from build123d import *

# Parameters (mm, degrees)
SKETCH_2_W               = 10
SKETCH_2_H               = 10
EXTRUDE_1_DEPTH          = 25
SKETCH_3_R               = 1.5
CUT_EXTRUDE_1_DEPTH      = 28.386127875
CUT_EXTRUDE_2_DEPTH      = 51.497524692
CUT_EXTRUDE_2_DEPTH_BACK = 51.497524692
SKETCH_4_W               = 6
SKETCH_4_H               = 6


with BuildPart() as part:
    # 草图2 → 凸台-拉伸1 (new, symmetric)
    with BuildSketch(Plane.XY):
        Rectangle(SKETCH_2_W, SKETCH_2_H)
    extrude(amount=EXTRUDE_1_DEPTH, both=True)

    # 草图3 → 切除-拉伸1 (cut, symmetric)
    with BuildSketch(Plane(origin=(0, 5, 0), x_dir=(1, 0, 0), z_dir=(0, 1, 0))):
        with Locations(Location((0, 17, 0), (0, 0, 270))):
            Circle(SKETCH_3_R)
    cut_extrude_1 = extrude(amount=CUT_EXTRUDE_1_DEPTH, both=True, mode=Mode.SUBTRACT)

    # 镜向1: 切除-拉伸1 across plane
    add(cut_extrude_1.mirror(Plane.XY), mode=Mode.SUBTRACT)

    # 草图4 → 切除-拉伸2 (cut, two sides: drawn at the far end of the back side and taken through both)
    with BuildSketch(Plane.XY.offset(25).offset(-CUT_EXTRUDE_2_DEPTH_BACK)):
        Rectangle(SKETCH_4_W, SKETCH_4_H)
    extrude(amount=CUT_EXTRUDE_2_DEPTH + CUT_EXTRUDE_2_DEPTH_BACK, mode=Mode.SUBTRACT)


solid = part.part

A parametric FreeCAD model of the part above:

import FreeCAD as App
import Part
import Sketcher
from FreeCAD import Vector
Q = App.Units.Quantity


def add_polygon(sketch, points):
    """Adds a closed chain of lines whose ends are joined by coincident constraints."""
    first, n = sketch.GeometryCount, len(points)
    for a, b in zip(points, points[1:] + points[:1]):
        sketch.addGeometry(Part.LineSegment(App.Vector(*a, 0), App.Vector(*b, 0)), False)
    for i in range(n):
        sketch.addConstraint(Sketcher.Constraint("Coincident", first + i, 2, first + (i + 1) % n, 1))

doc = App.newDocument("Part")
params = doc.addObject("Spreadsheet::Sheet", "Params")
for row, (alias, value) in enumerate([
    ("sketch1_width", "10 mm"),
    ("pad1_length", "50 mm"),
    ("sketch2_diameter", "3 mm"),
    ("pocket1_length", "56.772256 mm"),
    ("sketch3_width", "6 mm"),
], start=1):
    params.set(f"A{row}", alias)
    params.set(f"B{row}", "=" + value)
    params.setAlias(f"B{row}", alias)

body = doc.addObject("PartDesign::Body", "Body")

sketch1 = body.newObject("Sketcher::SketchObject", "Sketch")
sketch1.AttachmentSupport = (doc.getObject("XY_Plane"), [""])
sketch1.MapMode = "FlatFace"
add_polygon(sketch1, [(-5, 5), (-5, -5), (5, -5), (5, 5)])
sketch1.addConstraint([
    Sketcher.Constraint("Vertical", 0),
    Sketcher.Constraint("Horizontal", 1),
    Sketcher.Constraint("Vertical", 2),
    Sketcher.Constraint("Horizontal", 3),
    Sketcher.Constraint("Symmetric", 0, 2, 2, 2, -1, 1),
    Sketcher.Constraint("Equal", 3, 0),
    Sketcher.Constraint("DistanceX", 1, 1, 1, 2, Q("10 mm")),
])
sketch1.setExpression("Constraints[10]", "Params.sketch1_width")
pad1 = body.newObject("PartDesign::Pad", "Pad")
pad1.Profile = sketch1
pad1.setExpression("Length", "Params.pad1_length")
pad1.Midplane = True

sketch2 = body.newObject("Sketcher::SketchObject", "Sketch001")
sketch2.AttachmentSupport = (doc.getObject("XZ_Plane"), [""])
sketch2.MapMode = "FlatFace"
sketch2.AttachmentOffset = App.Placement(Vector(0, 0, -5), App.Rotation())
sketch2.addGeometry(Part.Circle(Vector(0, -17, 0), Vector(0, 0, 1), 1.5), False)
sketch2.addConstraint([
    Sketcher.Constraint("PointOnObject", 0, 3, -2),
    Sketcher.Constraint("Diameter", 0, Q("3 mm")),
    Sketcher.Constraint("DistanceY", 0, 3, -1, 1, Q("17 mm")),
])
sketch2.setExpression("Constraints[1]", "Params.sketch2_diameter")
pocket1 = body.newObject("PartDesign::Pocket", "Pocket")
pocket1.Profile = sketch2
pocket1.setExpression("Length", "Params.pocket1_length")
pocket1.Midplane = True
doc.recompute()

mirrored = body.newObject("PartDesign::Mirrored", "Mirrored")
mirrored.Originals = [pocket1]
mirrored.MirrorPlane = (doc.getObject("XY_Plane"), [""])
body.Tip = mirrored

sketch3 = body.newObject("Sketcher::SketchObject", "Sketch002")
sketch3.AttachmentSupport = (doc.getObject("XY_Plane"), [""])
sketch3.MapMode = "FlatFace"
sketch3.AttachmentOffset = App.Placement(Vector(0, 0, 25), App.Rotation())
add_polygon(sketch3, [(-3, 3), (-3, -3), (3, -3), (3, 3)])
sketch3.addConstraint([
    Sketcher.Constraint("Vertical", 0),
    Sketcher.Constraint("Horizontal", 1),
    Sketcher.Constraint("Vertical", 2),
    Sketcher.Constraint("Horizontal", 3),
    Sketcher.Constraint("Symmetric", 0, 2, 2, 2, -1, 1),
    Sketcher.Constraint("Equal", 3, 0),
    Sketcher.Constraint("DistanceX", 1, 1, 1, 2, Q("6 mm")),
])
sketch3.setExpression("Constraints[10]", "Params.sketch3_width")
pocket2 = body.newObject("PartDesign::Pocket", "Pocket001")
pocket2.Profile = sketch3
pocket2.Type = "ThroughAll"
pocket2.Midplane = True

doc.recompute()
